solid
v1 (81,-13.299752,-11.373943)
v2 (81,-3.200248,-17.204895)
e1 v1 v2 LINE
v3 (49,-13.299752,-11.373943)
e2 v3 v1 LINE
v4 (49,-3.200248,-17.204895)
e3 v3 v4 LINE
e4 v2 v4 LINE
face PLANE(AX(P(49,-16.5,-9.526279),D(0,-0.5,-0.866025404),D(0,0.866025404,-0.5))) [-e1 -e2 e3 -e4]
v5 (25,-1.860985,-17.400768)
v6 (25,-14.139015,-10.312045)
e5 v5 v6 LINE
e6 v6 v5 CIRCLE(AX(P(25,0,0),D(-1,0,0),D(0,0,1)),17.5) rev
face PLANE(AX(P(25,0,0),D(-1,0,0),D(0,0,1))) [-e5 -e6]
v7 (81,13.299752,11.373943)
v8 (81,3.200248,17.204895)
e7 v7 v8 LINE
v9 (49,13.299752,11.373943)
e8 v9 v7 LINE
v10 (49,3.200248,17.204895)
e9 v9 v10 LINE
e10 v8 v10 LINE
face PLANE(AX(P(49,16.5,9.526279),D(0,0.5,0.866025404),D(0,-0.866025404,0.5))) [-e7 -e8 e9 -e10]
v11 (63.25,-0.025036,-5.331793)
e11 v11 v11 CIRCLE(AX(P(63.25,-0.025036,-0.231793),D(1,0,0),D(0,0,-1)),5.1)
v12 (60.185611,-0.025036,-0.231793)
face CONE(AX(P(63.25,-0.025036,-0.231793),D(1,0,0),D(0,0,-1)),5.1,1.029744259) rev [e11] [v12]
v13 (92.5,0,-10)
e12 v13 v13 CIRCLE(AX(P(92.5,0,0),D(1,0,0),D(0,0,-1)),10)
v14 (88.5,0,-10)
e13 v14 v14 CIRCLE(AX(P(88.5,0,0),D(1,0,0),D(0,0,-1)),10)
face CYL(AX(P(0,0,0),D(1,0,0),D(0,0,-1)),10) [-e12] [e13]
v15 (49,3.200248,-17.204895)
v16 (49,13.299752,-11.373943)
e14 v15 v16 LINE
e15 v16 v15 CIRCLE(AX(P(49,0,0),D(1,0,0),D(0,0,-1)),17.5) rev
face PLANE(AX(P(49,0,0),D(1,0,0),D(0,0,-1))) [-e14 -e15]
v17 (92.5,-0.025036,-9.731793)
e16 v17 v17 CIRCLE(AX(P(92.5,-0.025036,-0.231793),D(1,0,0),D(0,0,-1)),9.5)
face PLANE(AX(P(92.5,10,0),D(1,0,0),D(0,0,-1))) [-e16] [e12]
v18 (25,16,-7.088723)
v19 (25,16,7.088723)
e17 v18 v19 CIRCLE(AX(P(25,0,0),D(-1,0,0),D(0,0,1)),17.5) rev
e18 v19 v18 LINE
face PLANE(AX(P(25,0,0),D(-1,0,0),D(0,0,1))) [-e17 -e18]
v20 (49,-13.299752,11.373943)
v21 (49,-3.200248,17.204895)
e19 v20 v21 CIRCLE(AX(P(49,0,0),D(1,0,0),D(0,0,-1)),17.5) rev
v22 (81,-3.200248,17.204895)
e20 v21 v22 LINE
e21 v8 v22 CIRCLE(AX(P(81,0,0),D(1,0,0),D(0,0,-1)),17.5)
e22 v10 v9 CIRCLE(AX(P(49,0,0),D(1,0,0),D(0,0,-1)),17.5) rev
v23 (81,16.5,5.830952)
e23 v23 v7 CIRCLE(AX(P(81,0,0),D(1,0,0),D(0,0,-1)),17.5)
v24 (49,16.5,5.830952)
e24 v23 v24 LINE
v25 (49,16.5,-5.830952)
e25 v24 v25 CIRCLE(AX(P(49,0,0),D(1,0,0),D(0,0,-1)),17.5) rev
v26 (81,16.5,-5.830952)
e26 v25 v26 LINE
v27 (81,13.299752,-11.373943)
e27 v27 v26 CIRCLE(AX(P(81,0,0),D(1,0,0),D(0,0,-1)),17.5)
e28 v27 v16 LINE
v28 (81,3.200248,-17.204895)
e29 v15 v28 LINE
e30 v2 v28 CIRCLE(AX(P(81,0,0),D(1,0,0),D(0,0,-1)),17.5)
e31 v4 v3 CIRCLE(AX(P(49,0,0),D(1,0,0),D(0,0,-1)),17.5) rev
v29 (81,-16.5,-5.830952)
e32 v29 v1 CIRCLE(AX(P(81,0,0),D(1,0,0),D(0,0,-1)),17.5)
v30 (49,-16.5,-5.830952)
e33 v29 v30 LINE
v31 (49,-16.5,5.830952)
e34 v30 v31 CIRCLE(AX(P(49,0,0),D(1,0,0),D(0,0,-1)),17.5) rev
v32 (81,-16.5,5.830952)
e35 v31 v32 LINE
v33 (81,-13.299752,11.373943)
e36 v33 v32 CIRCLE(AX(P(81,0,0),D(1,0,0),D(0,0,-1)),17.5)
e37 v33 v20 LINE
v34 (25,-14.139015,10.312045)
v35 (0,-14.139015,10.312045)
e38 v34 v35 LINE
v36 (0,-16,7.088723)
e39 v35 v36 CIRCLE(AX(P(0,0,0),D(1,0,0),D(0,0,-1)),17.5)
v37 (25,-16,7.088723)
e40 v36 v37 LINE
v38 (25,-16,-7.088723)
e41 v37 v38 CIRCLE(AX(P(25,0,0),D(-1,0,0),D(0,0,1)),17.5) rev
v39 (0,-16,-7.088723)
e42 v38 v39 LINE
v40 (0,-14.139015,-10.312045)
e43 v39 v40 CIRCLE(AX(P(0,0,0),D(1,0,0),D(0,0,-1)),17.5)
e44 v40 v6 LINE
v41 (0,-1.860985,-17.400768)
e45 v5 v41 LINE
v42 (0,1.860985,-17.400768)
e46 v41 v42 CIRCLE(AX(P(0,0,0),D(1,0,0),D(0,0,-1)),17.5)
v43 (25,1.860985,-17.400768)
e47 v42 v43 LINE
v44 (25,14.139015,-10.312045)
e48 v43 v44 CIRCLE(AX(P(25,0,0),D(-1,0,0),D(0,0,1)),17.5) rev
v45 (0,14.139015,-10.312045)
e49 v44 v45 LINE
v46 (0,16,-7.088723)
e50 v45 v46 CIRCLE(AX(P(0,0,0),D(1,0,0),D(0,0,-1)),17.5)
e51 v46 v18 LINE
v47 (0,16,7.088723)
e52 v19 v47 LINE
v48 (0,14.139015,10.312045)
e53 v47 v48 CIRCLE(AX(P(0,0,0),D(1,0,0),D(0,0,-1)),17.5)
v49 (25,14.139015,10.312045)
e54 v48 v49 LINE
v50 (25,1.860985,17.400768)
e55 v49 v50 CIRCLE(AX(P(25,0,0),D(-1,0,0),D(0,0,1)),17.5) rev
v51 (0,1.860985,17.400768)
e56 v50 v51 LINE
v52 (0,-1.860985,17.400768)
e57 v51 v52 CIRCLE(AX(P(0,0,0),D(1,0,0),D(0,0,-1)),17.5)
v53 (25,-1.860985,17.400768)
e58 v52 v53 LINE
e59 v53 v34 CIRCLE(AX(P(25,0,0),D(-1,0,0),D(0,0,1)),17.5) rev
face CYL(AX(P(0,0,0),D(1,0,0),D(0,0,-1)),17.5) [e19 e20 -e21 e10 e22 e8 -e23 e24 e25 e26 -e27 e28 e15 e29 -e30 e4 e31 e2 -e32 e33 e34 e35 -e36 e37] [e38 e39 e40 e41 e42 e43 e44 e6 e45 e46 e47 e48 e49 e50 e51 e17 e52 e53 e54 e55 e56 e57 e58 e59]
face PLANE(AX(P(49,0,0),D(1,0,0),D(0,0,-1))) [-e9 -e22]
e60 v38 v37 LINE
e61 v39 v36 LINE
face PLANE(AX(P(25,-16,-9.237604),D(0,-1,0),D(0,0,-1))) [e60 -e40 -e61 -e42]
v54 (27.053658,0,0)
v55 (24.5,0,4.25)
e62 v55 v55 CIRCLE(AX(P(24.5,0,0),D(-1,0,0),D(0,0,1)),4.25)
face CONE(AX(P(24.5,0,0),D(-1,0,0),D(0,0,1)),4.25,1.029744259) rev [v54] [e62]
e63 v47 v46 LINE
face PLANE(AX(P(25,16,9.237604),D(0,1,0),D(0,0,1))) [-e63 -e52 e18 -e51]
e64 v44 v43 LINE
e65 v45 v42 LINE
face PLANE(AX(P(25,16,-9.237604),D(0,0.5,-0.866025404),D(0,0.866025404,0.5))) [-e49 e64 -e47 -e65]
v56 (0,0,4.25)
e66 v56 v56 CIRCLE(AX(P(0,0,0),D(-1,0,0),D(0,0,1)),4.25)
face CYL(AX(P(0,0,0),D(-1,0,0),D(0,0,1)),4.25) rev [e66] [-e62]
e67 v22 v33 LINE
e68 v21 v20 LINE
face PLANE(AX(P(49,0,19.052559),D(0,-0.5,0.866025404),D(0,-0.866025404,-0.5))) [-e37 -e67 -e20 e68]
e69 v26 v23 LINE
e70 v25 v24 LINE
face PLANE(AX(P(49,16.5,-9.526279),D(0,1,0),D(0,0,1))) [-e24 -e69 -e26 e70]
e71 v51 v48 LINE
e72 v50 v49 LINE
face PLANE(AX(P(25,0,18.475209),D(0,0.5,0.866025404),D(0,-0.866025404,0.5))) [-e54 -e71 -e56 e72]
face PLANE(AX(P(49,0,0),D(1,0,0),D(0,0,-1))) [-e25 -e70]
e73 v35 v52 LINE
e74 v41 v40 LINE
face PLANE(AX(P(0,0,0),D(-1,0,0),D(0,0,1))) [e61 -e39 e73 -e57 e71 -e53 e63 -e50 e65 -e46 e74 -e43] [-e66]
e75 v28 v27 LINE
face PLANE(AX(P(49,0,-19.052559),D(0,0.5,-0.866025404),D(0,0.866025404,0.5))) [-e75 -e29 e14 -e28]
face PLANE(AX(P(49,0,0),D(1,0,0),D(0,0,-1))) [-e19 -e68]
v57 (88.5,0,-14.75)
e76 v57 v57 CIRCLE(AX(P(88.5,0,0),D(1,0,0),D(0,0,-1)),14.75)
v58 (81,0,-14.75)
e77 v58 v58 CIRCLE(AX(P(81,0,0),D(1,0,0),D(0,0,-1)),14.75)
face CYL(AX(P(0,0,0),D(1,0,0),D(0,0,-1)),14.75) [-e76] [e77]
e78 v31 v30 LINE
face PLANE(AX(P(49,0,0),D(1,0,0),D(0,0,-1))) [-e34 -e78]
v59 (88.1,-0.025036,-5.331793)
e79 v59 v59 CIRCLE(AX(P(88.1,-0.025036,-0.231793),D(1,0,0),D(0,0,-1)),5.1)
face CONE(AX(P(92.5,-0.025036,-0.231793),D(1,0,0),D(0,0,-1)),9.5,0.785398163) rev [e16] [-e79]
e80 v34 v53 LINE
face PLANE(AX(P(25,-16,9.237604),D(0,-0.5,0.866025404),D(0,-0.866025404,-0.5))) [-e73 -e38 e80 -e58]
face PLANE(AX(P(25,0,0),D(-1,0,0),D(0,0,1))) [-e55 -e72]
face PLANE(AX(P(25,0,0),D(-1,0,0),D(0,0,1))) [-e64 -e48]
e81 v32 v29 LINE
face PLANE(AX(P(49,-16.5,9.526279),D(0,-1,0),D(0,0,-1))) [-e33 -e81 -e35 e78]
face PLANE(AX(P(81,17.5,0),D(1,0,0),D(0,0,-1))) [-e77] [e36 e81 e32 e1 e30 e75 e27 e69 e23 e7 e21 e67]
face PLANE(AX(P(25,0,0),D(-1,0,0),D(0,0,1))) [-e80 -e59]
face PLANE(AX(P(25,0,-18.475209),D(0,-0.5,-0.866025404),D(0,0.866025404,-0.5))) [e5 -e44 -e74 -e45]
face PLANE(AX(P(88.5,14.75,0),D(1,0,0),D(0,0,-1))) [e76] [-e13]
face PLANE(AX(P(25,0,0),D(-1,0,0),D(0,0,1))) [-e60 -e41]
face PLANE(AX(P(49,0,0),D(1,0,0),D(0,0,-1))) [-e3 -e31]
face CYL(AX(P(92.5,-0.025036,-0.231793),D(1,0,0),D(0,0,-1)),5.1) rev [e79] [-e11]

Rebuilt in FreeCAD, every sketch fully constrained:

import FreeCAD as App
import Part
import Sketcher
from FreeCAD import Vector
Q = App.Units.Quantity

doc = App.newDocument("Part")
body = doc.addObject("PartDesign::Body", "Body")

# Sketch on XY plane
sketch1 = doc.addObject("Sketcher::SketchObject", "Sketch")
body.addObject(sketch1)
sketch1.AttachmentSupport = (doc.XY_Plane, [""])
sketch1.MapMode = "FlatFace"
sketch1.addGeometry([
    Part.LineSegment(Vector(0, 17.5, 0), Vector(0, 0, 0)),  # 0
    Part.LineSegment(Vector(0, 0, 0), Vector(92.5, 0, 0)),  # 1
    Part.LineSegment(Vector(92.5, 0, 0), Vector(92.5, 10, 0)),  # 2
    Part.LineSegment(Vector(92.5, 10, 0), Vector(88.5, 10, 0)),  # 3
    Part.LineSegment(Vector(88.5, 10, 0), Vector(88.5, 14.75, 0)),  # 4
    Part.LineSegment(Vector(88.5, 14.75, 0), Vector(81, 14.75, 0)),  # 5
    Part.LineSegment(Vector(81, 14.75, 0), Vector(81, 17.5, 0)),  # 6
    Part.LineSegment(Vector(81, 17.5, 0), Vector(0, 17.5, 0)),  # 7
], False)
sketch1.addConstraint([
    Sketcher.Constraint("Coincident", 0, 2, 1, 1),
    Sketcher.Constraint("Coincident", 1, 2, 2, 1),
    Sketcher.Constraint("Coincident", 2, 2, 3, 1),
    Sketcher.Constraint("Coincident", 3, 2, 4, 1),
    Sketcher.Constraint("Coincident", 4, 2, 5, 1),
    Sketcher.Constraint("Coincident", 5, 2, 6, 1),
    Sketcher.Constraint("Coincident", 6, 2, 7, 1),
    Sketcher.Constraint("Coincident", 7, 2, 0, 1),
    Sketcher.Constraint("Vertical", 0),
    Sketcher.Constraint("Horizontal", 1),
    Sketcher.Constraint("Vertical", 2),
    Sketcher.Constraint("Horizontal", 3),
    Sketcher.Constraint("Vertical", 4),
    Sketcher.Constraint("Horizontal", 5),
    Sketcher.Constraint("Vertical", 6),
    Sketcher.Constraint("Horizontal", 7),
    Sketcher.Constraint("Coincident", 0, 2, -1, 1),
    Sketcher.Constraint("DistanceX", 3, 2, 3, 1, Q("4 mm")),
    Sketcher.Constraint("DistanceX", 7, 2, 7, 1, Q("81 mm")),
    Sketcher.Constraint("DistanceY", 2, 1, 2, 2, Q("10 mm")),
    Sketcher.Constraint("DistanceX", 1, 1, 1, 2, Q("92.5 mm")),
    Sketcher.Constraint("DistanceY", 0, 2, 0, 1, Q("17.5 mm")),
    Sketcher.Constraint("DistanceY", 4, 1, 4, 2, Q("4.75 mm")),
])
revolution = doc.addObject("PartDesign::Revolution", "Revolution")
body.addObject(revolution)
revolution.Profile = sketch1
revolution.ReferenceAxis = (sketch1, ["H_Axis"])
revolution.Angle = 360

# Sketch on YZ plane
sketch2 = doc.addObject("Sketcher::SketchObject", "Sketch001")
body.addObject(sketch2)
sketch2.AttachmentSupport = (doc.YZ_Plane, [""])
sketch2.MapMode = "FlatFace"
sketch2.addGeometry([
    Part.LineSegment(Vector(28.991, -28.991, 0), Vector(-28.991, -28.991, 0)),  # 0
    Part.LineSegment(Vector(-28.991, -28.991, 0), Vector(-28.991, 28.991, 0)),  # 1
    Part.LineSegment(Vector(-28.991, 28.991, 0), Vector(28.991, 28.991, 0)),  # 2
    Part.LineSegment(Vector(28.991, 28.991, 0), Vector(28.991, -28.991, 0)),  # 3
    Part.LineSegment(Vector(16, -9.237604, 0), Vector(16, 9.237604, 0)),  # 4
    Part.LineSegment(Vector(16, 9.237604, 0), Vector(0, 18.475209, 0)),  # 5
    Part.LineSegment(Vector(0, 18.475209, 0), Vector(-16, 9.237604, 0)),  # 6
    Part.LineSegment(Vector(-16, 9.237604, 0), Vector(-16, -9.237604, 0)),  # 7
    Part.LineSegment(Vector(-16, -9.237604, 0), Vector(0, -18.475209, 0)),  # 8
    Part.LineSegment(Vector(0, -18.475209, 0), Vector(16, -9.237604, 0)),  # 9
], False)
sketch2.addConstraint([
    Sketcher.Constraint("Coincident", 0, 2, 1, 1),
    Sketcher.Constraint("Coincident", 1, 2, 2, 1),
    Sketcher.Constraint("Coincident", 2, 2, 3, 1),
    Sketcher.Constraint("Coincident", 3, 2, 0, 1),
    Sketcher.Constraint("Coincident", 4, 2, 5, 1),
    Sketcher.Constraint("Coincident", 5, 2, 6, 1),
    Sketcher.Constraint("Coincident", 6, 2, 7, 1),
    Sketcher.Constraint("Coincident", 7, 2, 8, 1),
    Sketcher.Constraint("Coincident", 8, 2, 9, 1),
    Sketcher.Constraint("Coincident", 9, 2, 4, 1),
    Sketcher.Constraint("Horizontal", 0),
    Sketcher.Constraint("Vertical", 1),
    Sketcher.Constraint("Horizontal", 2),
    Sketcher.Constraint("Vertical", 3),
    Sketcher.Constraint("Vertical", 4),
    Sketcher.Constraint("Vertical", 7),
    Sketcher.Constraint("Symmetric", 0, 2, 2, 2, -1, 1),
    Sketcher.Constraint("Symmetric", 4, 2, 7, 2, -1, 1),
    Sketcher.Constraint("Symmetric", 5, 2, 8, 2, -1, 1),
    Sketcher.Constraint("PointOnObject", 5, 2, -2),
    Sketcher.Constraint("Parallel", 6, 9),
    Sketcher.Constraint("Horizontal", 4, 2, 6, 2),
    Sketcher.Constraint("Equal", 2, 1),
    Sketcher.Constraint("Angle", 5, Q("150 deg")),
    Sketcher.Constraint("DistanceX", -1, 1, 4, 2, Q("16 mm")),
    Sketcher.Constraint("DistanceX", 0, 2, 0, 1, Q("57.982 mm")),
    Sketcher.Constraint("DistanceY", 4, 1, 4, 2, Q("18.475209 mm")),
])
pocket1 = doc.addObject("PartDesign::Pocket", "Pocket")
body.addObject(pocket1)
pocket1.Profile = sketch2
pocket1.Length = 25
pocket1.Reversed = True

# Sketch on YZ plane
sketch3 = doc.addObject("Sketcher::SketchObject", "Sketch002")
body.addObject(sketch3)
sketch3.AttachmentSupport = (doc.YZ_Plane, [""])
sketch3.MapMode = "FlatFace"
sketch3.addGeometry(Part.Circle(Vector(0, 0, 0), Vector(0, 0, 1), 4.25), False)
sketch3.addConstraint([
    Sketcher.Constraint("Coincident", 0, 3, -1, 1),
    Sketcher.Constraint("Diameter", 0, Q("8.5 mm")),
])
doc.recompute()
hole = doc.addObject("PartDesign::Hole", "Hole")
body.addObject(hole)
hole.Profile = sketch3
hole.ThreadType = "None"
hole.Diameter = 8.5
hole.DepthType = "Dimension"
hole.Depth = 24.5
hole.DrillPoint = "Angled"
hole.DrillPointAngle = 118
hole.Reversed = True

# Sketch on YZ plane
sketch4 = doc.addObject("Sketcher::SketchObject", "Sketch003")
body.addObject(sketch4)
sketch4.AttachmentSupport = (doc.YZ_Plane, [""])
sketch4.MapMode = "FlatFace"
sketch4.AttachmentOffset = App.Placement(Vector(0, 0, 81), App.Rotation())
sketch4.addGeometry([
    Part.LineSegment(Vector(28.991, 28.991, 0), Vector(-28.991, 28.991, 0)),  # 0
    Part.LineSegment(Vector(-28.991, 28.991, 0), Vector(-28.991, -28.991, 0)),  # 1
    Part.LineSegment(Vector(-28.991, -28.991, 0), Vector(28.991, -28.991, 0)),  # 2
    Part.LineSegment(Vector(28.991, -28.991, 0), Vector(28.991, 28.991, 0)),  # 3
    Part.LineSegment(Vector(-16.5, -9.526279, 0), Vector(-16.5, 9.526279, 0)),  # 4
    Part.LineSegment(Vector(-16.5, 9.526279, 0), Vector(0, 19.052559, 0)),  # 5
    Part.LineSegment(Vector(0, 19.052559, 0), Vector(16.5, 9.526279, 0)),  # 6
    Part.LineSegment(Vector(16.5, 9.526279, 0), Vector(16.5, -9.526279, 0)),  # 7
    Part.LineSegment(Vector(16.5, -9.526279, 0), Vector(0, -19.052559, 0)),  # 8
    Part.LineSegment(Vector(0, -19.052559, 0), Vector(-16.5, -9.526279, 0)),  # 9
], False)
sketch4.addConstraint([
    Sketcher.Constraint("Coincident", 0, 2, 1, 1),
    Sketcher.Constraint("Coincident", 1, 2, 2, 1),
    Sketcher.Constraint("Coincident", 2, 2, 3, 1),
    Sketcher.Constraint("Coincident", 3, 2, 0, 1),
    Sketcher.Constraint("Coincident", 4, 2, 5, 1),
    Sketcher.Constraint("Coincident", 5, 2, 6, 1),
    Sketcher.Constraint("Coincident", 6, 2, 7, 1),
    Sketcher.Constraint("Coincident", 7, 2, 8, 1),
    Sketcher.Constraint("Coincident", 8, 2, 9, 1),
    Sketcher.Constraint("Coincident", 9, 2, 4, 1),
    Sketcher.Constraint("Horizontal", 0),
    Sketcher.Constraint("Vertical", 1),
    Sketcher.Constraint("Horizontal", 2),
    Sketcher.Constraint("Vertical", 3),
    Sketcher.Constraint("Vertical", 4),
    Sketcher.Constraint("Vertical", 7),
    Sketcher.Constraint("Symmetric", 0, 2, 2, 2, -1, 1),
    Sketcher.Constraint("Symmetric", 4, 2, 7, 2, -1, 1),
    Sketcher.Constraint("Symmetric", 5, 2, 8, 2, -1, 1),
    Sketcher.Constraint("PointOnObject", 5, 2, -2),
    Sketcher.Constraint("Parallel", 6, 9),
    Sketcher.Constraint("Horizontal", 4, 2, 6, 2),
    Sketcher.Constraint("Equal", 2, 1),
    Sketcher.Constraint("Angle", 5, Q("30 deg")),
    Sketcher.Constraint("DistanceX", 4, 2, 6, 2, Q("33 mm")),
    Sketcher.Constraint("DistanceX", 0, 2, 0, 1, Q("57.982 mm")),
    Sketcher.Constraint("DistanceY", 4, 1, 4, 2, Q("19.052559 mm")),
])
pocket2 = doc.addObject("PartDesign::Pocket", "Pocket001")
body.addObject(pocket2)
pocket2.Profile = sketch4
pocket2.Length = 32

# Sketch on YZ plane
sketch5 = doc.addObject("Sketcher::SketchObject", "Sketch004")
body.addObject(sketch5)
sketch5.AttachmentSupport = (doc.YZ_Plane, [""])
sketch5.MapMode = "FlatFace"
sketch5.AttachmentOffset = App.Placement(Vector(0, 0, 92.5), App.Rotation())
sketch5.addGeometry(Part.Circle(Vector(-0.025036, -0.231793, 0), Vector(0, 0, 1), 5.1), False)
sketch5.addConstraint([
    Sketcher.Constraint("Diameter", 0, Q("10.2 mm")),
    Sketcher.Constraint("DistanceX", 0, 3, -1, 1, Q("0.025036 mm")),
    Sketcher.Constraint("DistanceY", 0, 3, -1, 1, Q("0.231793 mm")),
])
doc.recompute()
hole2 = doc.addObject("PartDesign::Hole", "Hole001")
body.addObject(hole2)
hole2.Profile = sketch5
hole2.ThreadType = "None"
hole2.Diameter = 10.2
hole2.DepthType = "Dimension"
hole2.Depth = 29.25
hole2.DrillPoint = "Angled"
hole2.DrillPointAngle = 118
hole2.HoleCutType = "Countersink"
hole2.HoleCutDiameter = 19
hole2.HoleCutCountersinkAngle = 90

doc.recompute()
